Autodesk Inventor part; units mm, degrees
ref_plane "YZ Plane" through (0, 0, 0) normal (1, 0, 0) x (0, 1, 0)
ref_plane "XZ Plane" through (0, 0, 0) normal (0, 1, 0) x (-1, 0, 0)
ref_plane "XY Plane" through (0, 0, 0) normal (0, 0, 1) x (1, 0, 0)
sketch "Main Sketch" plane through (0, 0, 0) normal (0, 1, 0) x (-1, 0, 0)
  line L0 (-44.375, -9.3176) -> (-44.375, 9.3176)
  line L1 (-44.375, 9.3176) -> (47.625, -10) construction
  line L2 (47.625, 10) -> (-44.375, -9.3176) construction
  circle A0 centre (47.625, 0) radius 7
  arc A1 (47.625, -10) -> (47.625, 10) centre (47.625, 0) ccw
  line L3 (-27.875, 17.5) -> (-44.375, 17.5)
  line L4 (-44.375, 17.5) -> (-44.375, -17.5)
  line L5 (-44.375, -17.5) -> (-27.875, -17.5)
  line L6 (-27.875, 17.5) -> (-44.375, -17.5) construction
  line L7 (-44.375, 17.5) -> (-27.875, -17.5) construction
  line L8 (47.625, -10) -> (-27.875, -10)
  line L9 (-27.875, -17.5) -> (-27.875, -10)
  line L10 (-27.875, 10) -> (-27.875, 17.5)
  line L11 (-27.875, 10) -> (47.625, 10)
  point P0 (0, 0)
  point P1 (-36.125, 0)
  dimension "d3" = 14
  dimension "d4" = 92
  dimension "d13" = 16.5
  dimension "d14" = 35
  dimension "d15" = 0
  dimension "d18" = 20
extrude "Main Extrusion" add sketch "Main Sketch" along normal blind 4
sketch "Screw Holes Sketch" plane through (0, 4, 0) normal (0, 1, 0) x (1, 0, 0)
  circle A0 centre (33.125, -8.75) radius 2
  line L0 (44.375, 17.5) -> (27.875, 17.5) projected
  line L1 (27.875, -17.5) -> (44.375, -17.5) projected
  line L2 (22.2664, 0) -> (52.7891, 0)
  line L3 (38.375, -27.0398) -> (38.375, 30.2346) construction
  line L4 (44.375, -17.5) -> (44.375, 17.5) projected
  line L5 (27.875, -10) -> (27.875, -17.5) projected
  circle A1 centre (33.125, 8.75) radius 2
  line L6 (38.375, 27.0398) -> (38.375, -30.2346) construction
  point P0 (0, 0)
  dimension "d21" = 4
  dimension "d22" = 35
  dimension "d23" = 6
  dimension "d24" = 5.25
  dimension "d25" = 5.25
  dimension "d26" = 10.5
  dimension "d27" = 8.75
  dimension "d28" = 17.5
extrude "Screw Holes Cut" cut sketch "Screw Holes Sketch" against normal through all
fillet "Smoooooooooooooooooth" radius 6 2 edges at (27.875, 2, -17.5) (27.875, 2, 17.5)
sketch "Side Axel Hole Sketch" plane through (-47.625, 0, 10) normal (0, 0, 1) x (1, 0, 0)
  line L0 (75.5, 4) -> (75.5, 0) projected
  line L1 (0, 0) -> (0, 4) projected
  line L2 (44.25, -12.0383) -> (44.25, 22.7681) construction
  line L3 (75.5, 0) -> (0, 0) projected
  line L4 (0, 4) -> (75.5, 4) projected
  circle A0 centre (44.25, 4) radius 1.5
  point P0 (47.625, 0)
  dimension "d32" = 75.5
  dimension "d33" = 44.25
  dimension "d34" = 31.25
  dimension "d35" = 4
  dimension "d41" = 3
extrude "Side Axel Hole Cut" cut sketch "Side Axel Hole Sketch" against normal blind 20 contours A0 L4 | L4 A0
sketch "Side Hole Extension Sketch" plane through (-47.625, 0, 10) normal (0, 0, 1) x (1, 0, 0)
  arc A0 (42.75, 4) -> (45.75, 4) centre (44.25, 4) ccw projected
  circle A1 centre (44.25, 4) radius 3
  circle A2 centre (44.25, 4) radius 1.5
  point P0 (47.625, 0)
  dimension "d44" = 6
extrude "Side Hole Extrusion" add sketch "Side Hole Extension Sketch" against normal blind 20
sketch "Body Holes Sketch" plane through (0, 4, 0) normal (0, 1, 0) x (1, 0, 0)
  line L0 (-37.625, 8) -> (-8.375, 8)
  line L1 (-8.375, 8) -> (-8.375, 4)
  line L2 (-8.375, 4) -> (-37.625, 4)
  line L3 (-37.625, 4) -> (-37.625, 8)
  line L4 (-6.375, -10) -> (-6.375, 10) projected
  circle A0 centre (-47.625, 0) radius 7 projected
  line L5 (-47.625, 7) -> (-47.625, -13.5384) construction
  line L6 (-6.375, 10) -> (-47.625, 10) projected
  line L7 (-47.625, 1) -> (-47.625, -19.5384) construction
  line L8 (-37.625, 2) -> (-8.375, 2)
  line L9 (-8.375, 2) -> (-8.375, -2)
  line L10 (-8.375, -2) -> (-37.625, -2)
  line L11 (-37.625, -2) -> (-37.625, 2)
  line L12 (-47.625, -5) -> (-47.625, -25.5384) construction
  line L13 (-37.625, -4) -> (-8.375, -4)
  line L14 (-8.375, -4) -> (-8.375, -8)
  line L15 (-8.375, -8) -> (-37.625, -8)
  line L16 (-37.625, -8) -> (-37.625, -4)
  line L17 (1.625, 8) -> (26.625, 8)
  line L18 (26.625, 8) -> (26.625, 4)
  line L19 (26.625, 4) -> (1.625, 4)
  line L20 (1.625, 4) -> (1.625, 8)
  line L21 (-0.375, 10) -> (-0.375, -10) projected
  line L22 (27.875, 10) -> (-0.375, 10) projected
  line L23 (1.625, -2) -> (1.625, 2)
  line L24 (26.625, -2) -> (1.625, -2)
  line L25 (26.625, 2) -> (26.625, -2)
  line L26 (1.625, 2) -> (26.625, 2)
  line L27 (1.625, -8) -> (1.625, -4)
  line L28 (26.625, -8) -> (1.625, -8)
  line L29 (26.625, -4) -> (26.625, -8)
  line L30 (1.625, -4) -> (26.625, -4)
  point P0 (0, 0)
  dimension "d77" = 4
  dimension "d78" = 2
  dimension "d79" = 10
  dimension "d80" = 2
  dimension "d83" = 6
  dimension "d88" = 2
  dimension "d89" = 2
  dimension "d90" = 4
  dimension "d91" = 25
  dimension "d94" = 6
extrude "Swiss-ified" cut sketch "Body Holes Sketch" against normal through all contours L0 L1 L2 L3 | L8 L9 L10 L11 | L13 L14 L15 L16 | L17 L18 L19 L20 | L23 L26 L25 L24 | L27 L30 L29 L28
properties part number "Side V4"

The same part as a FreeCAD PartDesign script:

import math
import FreeCAD as App
import Part
import Sketcher
from FreeCAD import Vector
Q = App.Units.Quantity


def edges_at(feature, points):
    """Names of the edges that pass closest to the given points."""
    edges = feature.Shape.Edges
    near = lambda p: min(range(len(edges)), key=lambda i: edges[i].distToShape(Part.Vertex(*p))[0])
    return sorted({f"Edge{near(p) + 1}" for p in points})


def add_polygon(sketch, points):
    """Adds a closed chain of lines whose ends are joined by coincident constraints."""
    first, n = sketch.GeometryCount, len(points)
    for a, b in zip(points, points[1:] + points[:1]):
        sketch.addGeometry(Part.LineSegment(App.Vector(*a, 0), App.Vector(*b, 0)), False)
    for i in range(n):
        sketch.addConstraint(Sketcher.Constraint("Coincident", first + i, 2, first + (i + 1) % n, 1))

doc = App.newDocument("Part")
params = doc.addObject("Spreadsheet::Sheet", "Params")
for row, (alias, value) in enumerate([
    ("sketch1_diameter", "14 mm"),
    ("sketch1_radius", "10 mm"),
    ("sketch1_height", "35 mm"),
    ("sketch1_width", "16.5 mm"),
    ("pad1_length", "4 mm"),
    ("sketch2_diameter", "4 mm"),
    ("fillet_radius", "6 mm"),
    ("sketch3_diameter", "3 mm"),
    ("pocket2_length", "20 mm"),
    ("sketch4_diameter", "6 mm"),
    ("sketch4_diameter2", "3 mm"),
    ("pad2_length", "20 mm"),
    ("sketch5_width", "25 mm"),
    ("sketch5_height", "4 mm"),
    ("sketch5_width2", "29.25 mm"),
], start=1):
    params.set(f"A{row}", alias)
    params.set(f"B{row}", "=" + value)
    params.setAlias(f"B{row}", alias)

body = doc.addObject("PartDesign::Body", "Body")

sketch1 = body.newObject("Sketcher::SketchObject", "Sketch")
sketch1.AttachmentSupport = (doc.getObject("XZ_Plane"), [""])
sketch1.MapMode = "FlatFace"
sketch1.addGeometry([
    Part.LineSegment(Vector(44, 18, 0), Vector(44, -18, 0)),
    Part.LineSegment(Vector(44, -18, 0), Vector(28, -18, 0)),
    Part.LineSegment(Vector(28, -18, 0), Vector(28, -10, 0)),
    Part.LineSegment(Vector(28, -10, 0), Vector(-48, -10, 0)),
    Part.ArcOfCircle(Part.Circle(Vector(-48, 0, 0), Vector(0, 0, 1), 10), math.radians(90), math.radians(270)),
    Part.LineSegment(Vector(-48, 10, 0), Vector(28, 10, 0)),
    Part.LineSegment(Vector(28, 10, 0), Vector(28, 18, 0)),
    Part.LineSegment(Vector(28, 18, 0), Vector(44, 18, 0)),
    Part.Circle(Vector(-48, 0, 0), Vector(0, 0, 1), 7),
], False)
sketch1.addConstraint([
    Sketcher.Constraint("Coincident", 0, 2, 1, 1),
    Sketcher.Constraint("Coincident", 1, 2, 2, 1),
    Sketcher.Constraint("Coincident", 2, 2, 3, 1),
    Sketcher.Constraint("Tangent", 3, 2, 4, 2),
    Sketcher.Constraint("Tangent", 4, 1, 5, 1),
    Sketcher.Constraint("Coincident", 5, 2, 6, 1),
    Sketcher.Constraint("Coincident", 6, 2, 7, 1),
    Sketcher.Constraint("Coincident", 7, 2, 0, 1),
    Sketcher.Constraint("Vertical", 0),
    Sketcher.Constraint("Horizontal", 1),
    Sketcher.Constraint("Vertical", 2),
    Sketcher.Constraint("Horizontal", 3),
    Sketcher.Constraint("Horizontal", 5),
    Sketcher.Constraint("Vertical", 6),
    Sketcher.Constraint("Horizontal", 7),
    Sketcher.Constraint("Coincident", 8, 3, 4, 3),
    Sketcher.Constraint("Symmetric", 2, 2, 5, 2, -1),
    Sketcher.Constraint("Equal", 2, 6),
    Sketcher.Constraint("Diameter", 8, Q("14 mm")),
    Sketcher.Constraint("Radius", 4, Q("10 mm")),
    Sketcher.Constraint("DistanceY", 0, 2, 0, 1, Q("35 mm")),
    Sketcher.Constraint("DistanceX", 1, 2, 1, 1, Q("16.5 mm")),
    Sketcher.Constraint("DistanceX", 4, 3, 0, 2, Q("92 mm")),
    Sketcher.Constraint("DistanceX", 4, 3, -1, 1, Q("47.625 mm")),
])
sketch1.setExpression("Constraints[18]", "Params.sketch1_diameter")
sketch1.setExpression("Constraints[19]", "Params.sketch1_radius")
sketch1.setExpression("Constraints[20]", "Params.sketch1_height")
sketch1.setExpression("Constraints[21]", "Params.sketch1_width")
pad1 = body.newObject("PartDesign::Pad", "Pad")
pad1.Profile = sketch1
pad1.setExpression("Length", "Params.pad1_length")
pad1.Reversed = True

sketch2 = body.newObject("Sketcher::SketchObject", "Sketch001")
sketch2.AttachmentSupport = (doc.getObject("XZ_Plane"), [""])
sketch2.MapMode = "FlatFace"
sketch2.AttachmentOffset = App.Placement(Vector(0, 0, -4), App.Rotation())
sketch2.addGeometry([
    Part.Circle(Vector(33.1, 8.8, 0), Vector(0, 0, 1), 2),
    Part.Circle(Vector(33.1, -8.8, 0), Vector(0, 0, 1), 2),
], False)
sketch2.addConstraint([
    Sketcher.Constraint("Equal", 0, 1),
    Sketcher.Constraint("Symmetric", 0, 3, 1, 3, -1),
    Sketcher.Constraint("Diameter", 0, Q("4 mm")),
    Sketcher.Constraint("DistanceY", 1, 3, 0, 3, Q("17.5 mm")),
    Sketcher.Constraint("DistanceX", -1, 1, 0, 3, Q("33.125 mm")),
])
sketch2.setExpression("Constraints[2]", "Params.sketch2_diameter")
pocket1 = body.newObject("PartDesign::Pocket", "Pocket")
pocket1.Profile = sketch2
pocket1.Type = "ThroughAll"
pocket1.Reversed = True
doc.recompute()

fillet = body.newObject("PartDesign::Fillet", "Fillet")
fillet.Base = (pocket1, edges_at(pocket1, [(27.875, 2, -17.5), (27.875, 2, 17.5)]))
fillet.setExpression("Radius", "Params.fillet_radius")

sketch3 = body.newObject("Sketcher::SketchObject", "Sketch002")
sketch3.AttachmentSupport = (doc.getObject("XY_Plane"), [""])
sketch3.MapMode = "FlatFace"
sketch3.AttachmentOffset = App.Placement(Vector(0, 0, 10), App.Rotation())
sketch3.addGeometry(Part.Circle(Vector(-3.4, 4, 0), Vector(0, 0, 1), 1.5), False)
sketch3.addConstraint([
    Sketcher.Constraint("Diameter", 0, Q("3 mm")),
    Sketcher.Constraint("DistanceY", -1, 1, 0, 3, Q("4 mm")),
    Sketcher.Constraint("DistanceX", 0, 3, -1, 1, Q("3.375 mm")),
])
sketch3.setExpression("Constraints[0]", "Params.sketch3_diameter")
pocket2 = body.newObject("PartDesign::Pocket", "Pocket001")
pocket2.Profile = sketch3
pocket2.setExpression("Length", "Params.pocket2_length")

sketch4 = body.newObject("Sketcher::SketchObject", "Sketch003")
sketch4.AttachmentSupport = (doc.getObject("XY_Plane"), [""])
sketch4.MapMode = "FlatFace"
sketch4.AttachmentOffset = App.Placement(Vector(0, 0, 10), App.Rotation())
sketch4.addGeometry([
    Part.Circle(Vector(-3.4, 4, 0), Vector(0, 0, 1), 3),
    Part.Circle(Vector(-3.4, 4, 0), Vector(0, 0, 1), 1.5),
], False)
sketch4.addConstraint([
    Sketcher.Constraint("Coincident", 1, 3, 0, 3),
    Sketcher.Constraint("Diameter", 0, Q("6 mm")),
    Sketcher.Constraint("Diameter", 1, Q("3 mm")),
    Sketcher.Constraint("DistanceY", -1, 1, 0, 3, Q("4 mm")),
    Sketcher.Constraint("DistanceX", 0, 3, -1, 1, Q("3.375 mm")),
])
sketch4.setExpression("Constraints[1]", "Params.sketch4_diameter")
sketch4.setExpression("Constraints[2]", "Params.sketch4_diameter2")
pad2 = body.newObject("PartDesign::Pad", "Pad001")
pad2.Profile = sketch4
pad2.setExpression("Length", "Params.pad2_length")
pad2.Reversed = True

sketch5 = body.newObject("Sketcher::SketchObject", "Sketch004")
sketch5.AttachmentSupport = (doc.getObject("XZ_Plane"), [""])
sketch5.MapMode = "FlatFace"
sketch5.AttachmentOffset = App.Placement(Vector(0, 0, -4), App.Rotation())
add_polygon(sketch5, [(-8.4, -8), (-37.6, -8), (-37.6, -4), (-8.4, -4)])
add_polygon(sketch5, [(-8.4, -2), (-37.6, -2), (-37.6, 2), (-8.4, 2)])
add_polygon(sketch5, [(-8.4, 4), (-37.6, 4), (-37.6, 8), (-8.4, 8)])
add_polygon(sketch5, [(26.6, -8), (1.6, -8), (1.6, -4), (26.6, -4)])
add_polygon(sketch5, [(1.6, -2), (1.6, 2), (26.6, 2), (26.6, -2)])
add_polygon(sketch5, [(1.6, 4), (1.6, 8), (26.6, 8), (26.6, 4)])
sketch5.addConstraint([
    Sketcher.Constraint("Horizontal", 0),
    Sketcher.Constraint("Vertical", 1),
    Sketcher.Constraint("Horizontal", 2),
    Sketcher.Constraint("Vertical", 3),
    Sketcher.Constraint("Horizontal", 4),
    Sketcher.Constraint("Vertical", 5),
    Sketcher.Constraint("Horizontal", 6),
    Sketcher.Constraint("Vertical", 7),
    Sketcher.Constraint("Horizontal", 8),
    Sketcher.Constraint("Vertical", 9),
    Sketcher.Constraint("Horizontal", 10),
    Sketcher.Constraint("Vertical", 11),
    Sketcher.Constraint("Horizontal", 12),
    Sketcher.Constraint("Vertical", 13),
    Sketcher.Constraint("Horizontal", 14),
    Sketcher.Constraint("Vertical", 15),
    Sketcher.Constraint("Vertical", 16),
    Sketcher.Constraint("Horizontal", 17),
    Sketcher.Constraint("Vertical", 18),
    Sketcher.Constraint("Horizontal", 19),
    Sketcher.Constraint("Vertical", 20),
    Sketcher.Constraint("Horizontal", 21),
    Sketcher.Constraint("Vertical", 22),
    Sketcher.Constraint("Horizontal", 23),
    Sketcher.Constraint("Symmetric", 1, 2, 8, 2, -1),
    Sketcher.Constraint("Symmetric", 3, 2, 10, 2, -1),
    Sketcher.Constraint("Symmetric", 12, 2, 20, 2, -1),
    Sketcher.Constraint("Symmetric", 14, 2, 22, 2, -1),
    Sketcher.Constraint("Horizontal", 3, 2, 12, 2),
    Sketcher.Constraint("Horizontal", 2, 2, 13, 2),
    Sketcher.Constraint("Horizontal", 6, 2, 16, 2),
    Sketcher.Constraint("Horizontal", 7, 2, 18, 2),
    Sketcher.Constraint("Vertical", 1, 2, 4, 2),
    Sketcher.Constraint("Vertical", 3, 2, 6, 2),
    Sketcher.Constraint("Vertical", 13, 2, 16, 2),
    Sketcher.Constraint("Vertical", 15, 2, 17, 2),
    Sketcher.Constraint("Equal", 3, 5),
    Sketcher.Constraint("DistanceX", 12, 2, 12, 1, Q("25 mm")),
    Sketcher.Constraint("DistanceY", 1, 1, 1, 2, Q("4 mm")),
    Sketcher.Constraint("DistanceY", 1, 2, -1, 1, Q("4 mm")),
    Sketcher.Constraint("DistanceY", 4, 2, -1, 1, Q("2 mm")),
    Sketcher.Constraint("DistanceX", 3, 2, 12, 2, Q("10 mm")),
    Sketcher.Constraint("DistanceX", 0, 2, 0, 1, Q("29.25 mm")),
    Sketcher.Constraint("DistanceX", 0, 2, -1, 1, Q("37.625 mm")),
])
sketch5.setExpression("Constraints[61]", "Params.sketch5_width")
sketch5.setExpression("Constraints[62]", "Params.sketch5_height")
sketch5.setExpression("Constraints[66]", "Params.sketch5_width2")
pocket3 = body.newObject("PartDesign::Pocket", "Pocket002")
pocket3.Profile = sketch5
pocket3.Type = "ThroughAll"
pocket3.Reversed = True

doc.recompute()
